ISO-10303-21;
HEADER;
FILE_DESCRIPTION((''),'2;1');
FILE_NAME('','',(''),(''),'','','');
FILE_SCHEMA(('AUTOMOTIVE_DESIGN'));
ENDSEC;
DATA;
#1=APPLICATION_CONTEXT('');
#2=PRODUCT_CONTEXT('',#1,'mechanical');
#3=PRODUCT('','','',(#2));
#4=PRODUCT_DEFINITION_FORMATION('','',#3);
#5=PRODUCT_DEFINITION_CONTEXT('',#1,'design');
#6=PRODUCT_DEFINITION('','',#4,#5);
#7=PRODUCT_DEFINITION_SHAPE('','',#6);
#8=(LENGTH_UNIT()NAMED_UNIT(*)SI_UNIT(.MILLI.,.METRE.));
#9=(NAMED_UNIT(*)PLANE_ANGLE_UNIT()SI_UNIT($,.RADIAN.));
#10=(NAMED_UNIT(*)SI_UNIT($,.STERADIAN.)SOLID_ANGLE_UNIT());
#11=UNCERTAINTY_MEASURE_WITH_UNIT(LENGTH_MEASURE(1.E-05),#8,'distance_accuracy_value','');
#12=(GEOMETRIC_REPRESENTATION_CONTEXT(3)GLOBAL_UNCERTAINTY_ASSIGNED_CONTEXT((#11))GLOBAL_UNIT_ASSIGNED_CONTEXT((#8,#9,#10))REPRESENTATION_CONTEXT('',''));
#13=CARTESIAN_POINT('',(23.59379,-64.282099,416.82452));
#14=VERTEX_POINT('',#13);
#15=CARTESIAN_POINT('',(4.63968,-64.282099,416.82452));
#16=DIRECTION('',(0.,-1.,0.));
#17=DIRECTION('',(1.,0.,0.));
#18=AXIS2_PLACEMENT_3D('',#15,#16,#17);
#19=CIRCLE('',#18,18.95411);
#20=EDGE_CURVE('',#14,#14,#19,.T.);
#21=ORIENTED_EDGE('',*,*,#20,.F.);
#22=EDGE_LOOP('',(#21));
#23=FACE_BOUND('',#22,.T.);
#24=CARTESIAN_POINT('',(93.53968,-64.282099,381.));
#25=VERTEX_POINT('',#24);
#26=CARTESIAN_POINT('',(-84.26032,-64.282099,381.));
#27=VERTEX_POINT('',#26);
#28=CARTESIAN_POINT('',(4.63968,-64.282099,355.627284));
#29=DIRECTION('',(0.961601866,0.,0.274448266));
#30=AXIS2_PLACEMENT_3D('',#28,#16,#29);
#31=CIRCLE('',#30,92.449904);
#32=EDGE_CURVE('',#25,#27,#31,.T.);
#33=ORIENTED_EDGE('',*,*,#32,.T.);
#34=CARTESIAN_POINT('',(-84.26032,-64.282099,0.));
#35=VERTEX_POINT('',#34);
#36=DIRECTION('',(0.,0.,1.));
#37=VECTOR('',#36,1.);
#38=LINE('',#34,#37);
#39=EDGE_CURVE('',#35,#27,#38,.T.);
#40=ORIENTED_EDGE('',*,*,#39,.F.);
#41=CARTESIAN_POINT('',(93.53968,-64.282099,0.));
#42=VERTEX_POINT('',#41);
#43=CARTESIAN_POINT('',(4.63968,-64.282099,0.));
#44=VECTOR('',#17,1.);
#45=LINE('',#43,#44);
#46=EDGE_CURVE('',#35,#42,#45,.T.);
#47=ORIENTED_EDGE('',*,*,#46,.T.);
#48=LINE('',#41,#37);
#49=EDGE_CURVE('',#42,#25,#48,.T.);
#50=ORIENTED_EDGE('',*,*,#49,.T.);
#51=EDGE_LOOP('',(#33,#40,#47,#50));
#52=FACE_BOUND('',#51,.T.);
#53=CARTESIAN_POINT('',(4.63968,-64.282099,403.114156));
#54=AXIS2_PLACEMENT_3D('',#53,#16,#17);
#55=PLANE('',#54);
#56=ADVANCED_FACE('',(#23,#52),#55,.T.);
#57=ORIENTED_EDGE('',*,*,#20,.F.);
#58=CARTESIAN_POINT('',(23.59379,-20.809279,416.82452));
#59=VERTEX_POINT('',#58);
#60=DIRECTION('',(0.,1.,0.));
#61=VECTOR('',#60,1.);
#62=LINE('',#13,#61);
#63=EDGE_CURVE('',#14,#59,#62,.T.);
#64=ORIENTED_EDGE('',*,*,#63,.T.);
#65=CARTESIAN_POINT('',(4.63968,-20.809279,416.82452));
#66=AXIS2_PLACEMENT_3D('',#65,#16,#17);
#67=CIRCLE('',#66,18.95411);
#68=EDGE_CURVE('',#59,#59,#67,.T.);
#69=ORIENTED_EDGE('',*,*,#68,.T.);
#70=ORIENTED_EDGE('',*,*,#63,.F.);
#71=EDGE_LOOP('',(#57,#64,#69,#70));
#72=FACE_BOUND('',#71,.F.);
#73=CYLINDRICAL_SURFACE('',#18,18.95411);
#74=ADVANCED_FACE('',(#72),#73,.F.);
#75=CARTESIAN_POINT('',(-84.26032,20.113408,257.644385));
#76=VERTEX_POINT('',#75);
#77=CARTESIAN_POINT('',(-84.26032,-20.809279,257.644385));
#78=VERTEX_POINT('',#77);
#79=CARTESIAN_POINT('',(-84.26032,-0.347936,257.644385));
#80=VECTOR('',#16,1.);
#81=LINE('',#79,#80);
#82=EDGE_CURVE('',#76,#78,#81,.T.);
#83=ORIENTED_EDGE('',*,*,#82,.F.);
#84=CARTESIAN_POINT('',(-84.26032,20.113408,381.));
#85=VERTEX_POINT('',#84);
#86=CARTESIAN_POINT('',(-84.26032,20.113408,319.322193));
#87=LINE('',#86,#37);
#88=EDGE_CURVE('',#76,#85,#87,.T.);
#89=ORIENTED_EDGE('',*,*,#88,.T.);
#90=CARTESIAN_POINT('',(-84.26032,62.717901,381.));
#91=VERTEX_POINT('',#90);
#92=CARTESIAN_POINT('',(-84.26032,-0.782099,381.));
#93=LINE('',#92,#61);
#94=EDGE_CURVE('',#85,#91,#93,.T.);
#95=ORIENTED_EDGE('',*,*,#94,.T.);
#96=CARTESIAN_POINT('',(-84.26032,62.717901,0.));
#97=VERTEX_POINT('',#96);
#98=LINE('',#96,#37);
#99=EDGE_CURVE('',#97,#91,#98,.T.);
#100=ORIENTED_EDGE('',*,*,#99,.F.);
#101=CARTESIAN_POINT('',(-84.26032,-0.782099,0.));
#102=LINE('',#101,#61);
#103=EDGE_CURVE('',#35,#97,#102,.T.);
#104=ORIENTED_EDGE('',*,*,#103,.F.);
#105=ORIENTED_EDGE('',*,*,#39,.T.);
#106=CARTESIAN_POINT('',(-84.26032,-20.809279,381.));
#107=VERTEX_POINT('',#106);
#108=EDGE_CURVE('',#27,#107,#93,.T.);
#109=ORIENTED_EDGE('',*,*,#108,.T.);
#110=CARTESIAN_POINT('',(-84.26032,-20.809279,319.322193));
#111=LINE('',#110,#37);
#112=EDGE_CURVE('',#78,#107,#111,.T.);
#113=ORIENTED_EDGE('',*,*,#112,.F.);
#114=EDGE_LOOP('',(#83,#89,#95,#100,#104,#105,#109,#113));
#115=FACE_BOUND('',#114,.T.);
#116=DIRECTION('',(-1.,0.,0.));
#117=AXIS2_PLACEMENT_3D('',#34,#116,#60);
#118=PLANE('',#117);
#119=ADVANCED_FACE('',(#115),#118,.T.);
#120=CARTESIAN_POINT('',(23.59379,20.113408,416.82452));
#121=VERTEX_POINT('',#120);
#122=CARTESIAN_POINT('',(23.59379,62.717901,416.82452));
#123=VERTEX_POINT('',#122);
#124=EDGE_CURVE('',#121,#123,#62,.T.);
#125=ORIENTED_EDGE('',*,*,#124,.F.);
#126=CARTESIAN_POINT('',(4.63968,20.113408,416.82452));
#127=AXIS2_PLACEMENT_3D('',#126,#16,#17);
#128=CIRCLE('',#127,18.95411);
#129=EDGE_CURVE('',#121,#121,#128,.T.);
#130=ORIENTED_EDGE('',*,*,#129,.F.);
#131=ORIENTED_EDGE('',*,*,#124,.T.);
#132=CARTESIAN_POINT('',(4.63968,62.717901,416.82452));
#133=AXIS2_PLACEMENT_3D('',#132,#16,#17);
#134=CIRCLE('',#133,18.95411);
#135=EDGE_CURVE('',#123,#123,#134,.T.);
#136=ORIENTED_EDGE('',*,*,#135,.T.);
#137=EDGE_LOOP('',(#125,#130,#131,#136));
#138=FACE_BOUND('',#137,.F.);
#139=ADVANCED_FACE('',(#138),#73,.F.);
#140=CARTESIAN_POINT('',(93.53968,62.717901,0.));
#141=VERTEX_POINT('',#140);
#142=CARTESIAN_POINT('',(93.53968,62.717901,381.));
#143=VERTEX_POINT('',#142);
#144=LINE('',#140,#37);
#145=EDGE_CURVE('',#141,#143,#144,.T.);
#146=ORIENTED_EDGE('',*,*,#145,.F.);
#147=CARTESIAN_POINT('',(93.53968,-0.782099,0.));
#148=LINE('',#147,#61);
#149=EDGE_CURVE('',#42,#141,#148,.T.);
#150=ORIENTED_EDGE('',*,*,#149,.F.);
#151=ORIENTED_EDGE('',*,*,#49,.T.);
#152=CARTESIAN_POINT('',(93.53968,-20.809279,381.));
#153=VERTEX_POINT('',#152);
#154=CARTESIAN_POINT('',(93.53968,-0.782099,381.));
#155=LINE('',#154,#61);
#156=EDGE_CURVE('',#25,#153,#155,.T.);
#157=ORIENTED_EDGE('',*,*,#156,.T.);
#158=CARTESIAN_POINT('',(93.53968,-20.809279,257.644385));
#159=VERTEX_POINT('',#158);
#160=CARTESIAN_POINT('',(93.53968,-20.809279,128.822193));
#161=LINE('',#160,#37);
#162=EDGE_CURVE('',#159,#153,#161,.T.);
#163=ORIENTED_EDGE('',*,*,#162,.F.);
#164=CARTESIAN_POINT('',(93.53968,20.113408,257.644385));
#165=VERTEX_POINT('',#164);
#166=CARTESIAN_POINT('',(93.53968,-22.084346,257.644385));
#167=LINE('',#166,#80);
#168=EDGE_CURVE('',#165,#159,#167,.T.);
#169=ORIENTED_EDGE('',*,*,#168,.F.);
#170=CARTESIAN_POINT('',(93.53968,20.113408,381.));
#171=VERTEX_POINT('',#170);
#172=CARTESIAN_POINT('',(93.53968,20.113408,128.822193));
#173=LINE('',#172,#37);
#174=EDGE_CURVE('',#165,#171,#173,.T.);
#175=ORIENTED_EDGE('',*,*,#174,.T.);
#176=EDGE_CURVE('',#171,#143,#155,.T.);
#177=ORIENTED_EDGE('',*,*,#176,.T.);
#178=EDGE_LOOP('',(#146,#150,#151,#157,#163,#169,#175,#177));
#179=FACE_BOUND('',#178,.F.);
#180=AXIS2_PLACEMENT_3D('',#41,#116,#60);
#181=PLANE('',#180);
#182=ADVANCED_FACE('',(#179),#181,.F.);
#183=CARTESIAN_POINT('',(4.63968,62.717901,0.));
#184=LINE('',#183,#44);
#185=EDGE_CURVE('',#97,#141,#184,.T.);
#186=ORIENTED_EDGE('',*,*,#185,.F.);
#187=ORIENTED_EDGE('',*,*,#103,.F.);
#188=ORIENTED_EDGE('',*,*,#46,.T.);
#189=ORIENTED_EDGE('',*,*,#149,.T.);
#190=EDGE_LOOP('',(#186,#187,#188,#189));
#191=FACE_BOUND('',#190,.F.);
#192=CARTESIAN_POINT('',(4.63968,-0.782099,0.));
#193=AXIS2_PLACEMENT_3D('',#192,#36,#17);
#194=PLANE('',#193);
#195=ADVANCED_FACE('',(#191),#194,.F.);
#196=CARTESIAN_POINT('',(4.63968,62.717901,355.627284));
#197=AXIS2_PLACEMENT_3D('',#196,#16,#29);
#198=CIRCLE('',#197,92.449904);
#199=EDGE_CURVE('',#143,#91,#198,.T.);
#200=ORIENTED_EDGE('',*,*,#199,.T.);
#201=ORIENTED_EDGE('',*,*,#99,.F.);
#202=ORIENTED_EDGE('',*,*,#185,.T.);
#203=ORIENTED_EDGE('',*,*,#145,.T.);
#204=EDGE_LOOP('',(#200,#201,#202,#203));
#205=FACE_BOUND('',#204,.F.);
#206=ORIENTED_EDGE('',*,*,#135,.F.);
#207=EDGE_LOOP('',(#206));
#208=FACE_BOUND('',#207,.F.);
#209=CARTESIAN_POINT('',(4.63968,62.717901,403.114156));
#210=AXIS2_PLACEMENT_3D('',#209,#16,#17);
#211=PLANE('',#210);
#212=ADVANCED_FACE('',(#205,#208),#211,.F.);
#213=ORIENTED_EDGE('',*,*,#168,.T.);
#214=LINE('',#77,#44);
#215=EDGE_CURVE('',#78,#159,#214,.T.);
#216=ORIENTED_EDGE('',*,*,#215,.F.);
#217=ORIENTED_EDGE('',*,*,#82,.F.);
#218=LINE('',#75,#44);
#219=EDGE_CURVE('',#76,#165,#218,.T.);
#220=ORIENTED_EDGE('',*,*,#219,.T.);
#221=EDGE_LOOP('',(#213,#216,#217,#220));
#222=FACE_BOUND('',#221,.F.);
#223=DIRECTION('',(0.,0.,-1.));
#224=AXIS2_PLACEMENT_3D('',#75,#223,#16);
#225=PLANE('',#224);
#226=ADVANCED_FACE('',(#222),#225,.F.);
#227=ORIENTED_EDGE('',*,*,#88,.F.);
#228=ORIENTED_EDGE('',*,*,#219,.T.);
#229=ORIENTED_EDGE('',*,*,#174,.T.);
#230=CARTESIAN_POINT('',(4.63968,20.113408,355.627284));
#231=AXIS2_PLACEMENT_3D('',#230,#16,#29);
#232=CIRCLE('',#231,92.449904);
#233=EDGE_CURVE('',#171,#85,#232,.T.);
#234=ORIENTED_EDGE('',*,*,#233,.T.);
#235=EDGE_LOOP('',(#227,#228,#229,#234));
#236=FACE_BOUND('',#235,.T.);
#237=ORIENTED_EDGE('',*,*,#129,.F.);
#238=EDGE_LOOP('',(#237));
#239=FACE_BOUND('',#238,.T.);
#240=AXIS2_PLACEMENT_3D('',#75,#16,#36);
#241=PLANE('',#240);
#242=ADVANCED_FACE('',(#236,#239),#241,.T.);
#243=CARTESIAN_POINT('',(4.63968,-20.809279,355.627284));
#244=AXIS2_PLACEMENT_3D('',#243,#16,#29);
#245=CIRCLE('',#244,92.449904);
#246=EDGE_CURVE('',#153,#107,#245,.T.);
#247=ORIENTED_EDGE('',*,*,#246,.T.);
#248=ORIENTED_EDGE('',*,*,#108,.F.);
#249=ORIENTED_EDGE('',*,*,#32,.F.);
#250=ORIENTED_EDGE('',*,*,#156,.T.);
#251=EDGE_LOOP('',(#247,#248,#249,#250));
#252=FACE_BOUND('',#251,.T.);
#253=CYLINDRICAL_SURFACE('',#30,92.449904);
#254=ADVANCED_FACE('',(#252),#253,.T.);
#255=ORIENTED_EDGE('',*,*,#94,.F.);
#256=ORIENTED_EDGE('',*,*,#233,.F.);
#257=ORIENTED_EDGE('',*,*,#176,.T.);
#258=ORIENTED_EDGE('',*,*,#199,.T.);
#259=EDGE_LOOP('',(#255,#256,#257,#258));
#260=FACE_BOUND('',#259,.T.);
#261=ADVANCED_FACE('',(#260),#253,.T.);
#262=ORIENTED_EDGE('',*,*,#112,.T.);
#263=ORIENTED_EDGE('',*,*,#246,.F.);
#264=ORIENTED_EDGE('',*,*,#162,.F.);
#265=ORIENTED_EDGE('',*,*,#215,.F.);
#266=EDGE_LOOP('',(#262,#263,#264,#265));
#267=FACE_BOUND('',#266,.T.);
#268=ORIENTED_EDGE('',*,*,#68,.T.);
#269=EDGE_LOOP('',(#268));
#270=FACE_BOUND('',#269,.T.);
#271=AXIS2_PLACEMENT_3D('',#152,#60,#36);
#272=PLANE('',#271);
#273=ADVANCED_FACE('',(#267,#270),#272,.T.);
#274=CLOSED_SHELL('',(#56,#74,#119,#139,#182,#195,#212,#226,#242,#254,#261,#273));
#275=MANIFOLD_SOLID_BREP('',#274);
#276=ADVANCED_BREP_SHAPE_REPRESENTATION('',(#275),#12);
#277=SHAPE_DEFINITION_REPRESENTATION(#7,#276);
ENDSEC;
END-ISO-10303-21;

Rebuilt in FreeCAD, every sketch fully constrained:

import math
import FreeCAD as App
import Part
import Sketcher

V = App.Vector
Q = App.Units.Quantity

doc = App.newDocument("Part")
body = doc.addObject("PartDesign::Body", "Body")

# Sketch on XY plane
sketch1 = body.newObject("Sketcher::SketchObject", "Sketch")
sketch1.AttachmentSupport = (doc.getObject("XY_Plane"), [""])
sketch1.MapMode = "FlatFace"
sketch1.addGeometry(Part.LineSegment(V(-84.26032, 62.717901, 0), V(-84.26032, -64.282099, 0)), False)
sketch1.addGeometry(Part.LineSegment(V(-84.26032, -64.282099, 0), V(93.53968, -64.282099, 0)), False)
sketch1.addGeometry(Part.LineSegment(V(93.53968, -64.282099, 0), V(93.53968, 62.717901, 0)), False)
sketch1.addGeometry(Part.LineSegment(V(93.53968, 62.717901, 0), V(-84.26032, 62.717901, 0)), False)
sketch1.addConstraint(Sketcher.Constraint("Coincident", 0, 2, 1, 1))
sketch1.addConstraint(Sketcher.Constraint("Coincident", 1, 2, 2, 1))
sketch1.addConstraint(Sketcher.Constraint("Coincident", 2, 2, 3, 1))
sketch1.addConstraint(Sketcher.Constraint("Coincident", 3, 2, 0, 1))
sketch1.addConstraint(Sketcher.Constraint("Vertical", 0))
sketch1.addConstraint(Sketcher.Constraint("Horizontal", 1))
sketch1.addConstraint(Sketcher.Constraint("Vertical", 2))
sketch1.addConstraint(Sketcher.Constraint("Horizontal", 3))
sketch1.addConstraint(Sketcher.Constraint("DistanceX", 1, 1, 1, 2, Q("7 in")))
sketch1.addConstraint(Sketcher.Constraint("DistanceY", 0, 2, 0, 1, Q("5 in")))
sketch1.addConstraint(Sketcher.Constraint("DistanceY", 0, 2, -1, 1, 64.282099))
sketch1.addConstraint(Sketcher.Constraint("DistanceX", 0, 2, -1, 1, 84.26032))
pad1 = body.newObject("PartDesign::Pad", "Pad")
pad1.Profile = sketch1
pad1.Length = Q("15 in")

# Sketch on XZ plane
sketch2 = body.newObject("Sketcher::SketchObject", "Sketch001")
sketch2.AttachmentSupport = (doc.getObject("XZ_Plane"), [""])
sketch2.MapMode = "FlatFace"
sketch2.AttachmentOffset = App.Placement(V(0, 0, 64.282099), App.Rotation())
sketch2.addGeometry(Part.LineSegment(V(-84.26032, 381, 0), V(93.53968, 381, 0)), False)
sketch2.addGeometry(Part.ArcOfCircle(Part.Circle(V(4.63968, 355.627284, 0), V(0, 0, 1), 92.449904), math.radians(15.929137), math.radians(164.070863)), False)
sketch2.addGeometry(Part.Circle(V(4.63968, 416.82452, 0), V(0, 0, 1), 18.95411), False)
sketch2.addConstraint(Sketcher.Constraint("Coincident", 0, 1, 1, 2))
sketch2.addConstraint(Sketcher.Constraint("Coincident", 1, 1, 0, 2))
sketch2.addConstraint(Sketcher.Constraint("Horizontal", 0))
sketch2.addConstraint(Sketcher.Constraint("Vertical", 1, 3, 2, 3))
sketch2.addConstraint(Sketcher.Constraint("DistanceX", 0, 1, 0, 2, Q("7 in")))
sketch2.addConstraint(Sketcher.Constraint("DistanceY", -1, 1, 0, 1, Q("15 in")))
sketch2.addConstraint(Sketcher.Constraint("Diameter", 2, 37.90822))
sketch2.addConstraint(Sketcher.Constraint("Radius", 1, 92.449904))
sketch2.addConstraint(Sketcher.Constraint("DistanceX", -1, 1, 1, 3, 4.63968))
sketch2.addConstraint(Sketcher.Constraint("DistanceY", -1, 1, 2, 3, 416.82452))
pad2 = body.newObject("PartDesign::Pad", "Pad001")
pad2.Profile = sketch2
pad2.Length = Q("5 in")
pad2.Reversed = True

# Sketch on YZ plane
sketch3 = body.newObject("Sketcher::SketchObject", "Sketch002")
sketch3.AttachmentSupport = (doc.getObject("YZ_Plane"), [""])
sketch3.MapMode = "FlatFace"
sketch3.AttachmentOffset = App.Placement(V(0, 0, 93.53968), App.Rotation())
sketch3.addGeometry(Part.LineSegment(V(-20.809279, 450.383156, 0), V(-20.809279, 381, 0)), False)
sketch3.addGeometry(Part.LineSegment(V(-20.809279, 381, 0), V(20.113408, 381, 0)), False)
sketch3.addGeometry(Part.LineSegment(V(20.113408, 381, 0), V(20.113408, 450.383156, 0)), False)
sketch3.addGeometry(Part.LineSegment(V(20.113408, 450.383156, 0), V(-20.809279, 450.383156, 0)), False)
sketch3.addConstraint(Sketcher.Constraint("Coincident", 0, 2, 1, 1))
sketch3.addConstraint(Sketcher.Constraint("Coincident", 1, 2, 2, 1))
sketch3.addConstraint(Sketcher.Constraint("Coincident", 2, 2, 3, 1))
sketch3.addConstraint(Sketcher.Constraint("Coincident", 3, 2, 0, 1))
sketch3.addConstraint(Sketcher.Constraint("Vertical", 0))
sketch3.addConstraint(Sketcher.Constraint("Horizontal", 1))
sketch3.addConstraint(Sketcher.Constraint("Vertical", 2))
sketch3.addConstraint(Sketcher.Constraint("Horizontal", 3))
sketch3.addConstraint(Sketcher.Constraint("DistanceY", -1, 1, 0, 2, Q("15 in")))
sketch3.addConstraint(Sketcher.Constraint("DistanceX", 1, 1, 1, 2, 40.922687))
sketch3.addConstraint(Sketcher.Constraint("DistanceY", 0, 2, 0, 1, 69.383157))
sketch3.addConstraint(Sketcher.Constraint("DistanceX", 0, 2, -1, 1, 20.809279))
pocket1 = body.newObject("PartDesign::Pocket", "Pocket")
pocket1.Profile = sketch3
pocket1.Length = Q("10 in")

# Sketch on YZ plane
sketch4 = body.newObject("Sketcher::SketchObject", "Sketch003")
sketch4.AttachmentSupport = (doc.getObject("YZ_Plane"), [""])
sketch4.MapMode = "FlatFace"
sketch4.AttachmentOffset = App.Placement(V(0, 0, -84.26032), App.Rotation())
sketch4.addGeometry(Part.LineSegment(V(20.113408, 381, 0), V(20.113408, 257.644385, 0)), False)
sketch4.addGeometry(Part.LineSegment(V(20.113408, 257.644385, 0), V(-20.809279, 257.644385, 0)), False)
sketch4.addGeometry(Part.LineSegment(V(-20.809279, 257.644385, 0), V(-20.809279, 381, 0)), False)
sketch4.addGeometry(Part.LineSegment(V(-20.809279, 381, 0), V(20.113408, 381, 0)), False)
sketch4.addConstraint(Sketcher.Constraint("Coincident", 0, 2, 1, 1))
sketch4.addConstraint(Sketcher.Constraint("Coincident", 1, 2, 2, 1))
sketch4.addConstraint(Sketcher.Constraint("Coincident", 2, 2, 3, 1))
sketch4.addConstraint(Sketcher.Constraint("Coincident", 3, 2, 0, 1))
sketch4.addConstraint(Sketcher.Constraint("Vertical", 0))
sketch4.addConstraint(Sketcher.Constraint("Horizontal", 1))
sketch4.addConstraint(Sketcher.Constraint("Vertical", 2))
sketch4.addConstraint(Sketcher.Constraint("Horizontal", 3))
sketch4.addConstraint(Sketcher.Constraint("DistanceY", -1, 1, 2, 2, Q("15 in")))
sketch4.addConstraint(Sketcher.Constraint("DistanceX", 1, 2, 1, 1, 40.922687))
sketch4.addConstraint(Sketcher.Constraint("DistanceY", 0, 2, 0, 1, 123.355615))
sketch4.addConstraint(Sketcher.Constraint("DistanceX", 1, 2, -1, 1, 20.809279))
pocket2 = body.newObject("PartDesign::Pocket", "Pocket001")
pocket2.Profile = sketch4
pocket2.Length = Q("10 in")
pocket2.Reversed = True

doc.recompute()
